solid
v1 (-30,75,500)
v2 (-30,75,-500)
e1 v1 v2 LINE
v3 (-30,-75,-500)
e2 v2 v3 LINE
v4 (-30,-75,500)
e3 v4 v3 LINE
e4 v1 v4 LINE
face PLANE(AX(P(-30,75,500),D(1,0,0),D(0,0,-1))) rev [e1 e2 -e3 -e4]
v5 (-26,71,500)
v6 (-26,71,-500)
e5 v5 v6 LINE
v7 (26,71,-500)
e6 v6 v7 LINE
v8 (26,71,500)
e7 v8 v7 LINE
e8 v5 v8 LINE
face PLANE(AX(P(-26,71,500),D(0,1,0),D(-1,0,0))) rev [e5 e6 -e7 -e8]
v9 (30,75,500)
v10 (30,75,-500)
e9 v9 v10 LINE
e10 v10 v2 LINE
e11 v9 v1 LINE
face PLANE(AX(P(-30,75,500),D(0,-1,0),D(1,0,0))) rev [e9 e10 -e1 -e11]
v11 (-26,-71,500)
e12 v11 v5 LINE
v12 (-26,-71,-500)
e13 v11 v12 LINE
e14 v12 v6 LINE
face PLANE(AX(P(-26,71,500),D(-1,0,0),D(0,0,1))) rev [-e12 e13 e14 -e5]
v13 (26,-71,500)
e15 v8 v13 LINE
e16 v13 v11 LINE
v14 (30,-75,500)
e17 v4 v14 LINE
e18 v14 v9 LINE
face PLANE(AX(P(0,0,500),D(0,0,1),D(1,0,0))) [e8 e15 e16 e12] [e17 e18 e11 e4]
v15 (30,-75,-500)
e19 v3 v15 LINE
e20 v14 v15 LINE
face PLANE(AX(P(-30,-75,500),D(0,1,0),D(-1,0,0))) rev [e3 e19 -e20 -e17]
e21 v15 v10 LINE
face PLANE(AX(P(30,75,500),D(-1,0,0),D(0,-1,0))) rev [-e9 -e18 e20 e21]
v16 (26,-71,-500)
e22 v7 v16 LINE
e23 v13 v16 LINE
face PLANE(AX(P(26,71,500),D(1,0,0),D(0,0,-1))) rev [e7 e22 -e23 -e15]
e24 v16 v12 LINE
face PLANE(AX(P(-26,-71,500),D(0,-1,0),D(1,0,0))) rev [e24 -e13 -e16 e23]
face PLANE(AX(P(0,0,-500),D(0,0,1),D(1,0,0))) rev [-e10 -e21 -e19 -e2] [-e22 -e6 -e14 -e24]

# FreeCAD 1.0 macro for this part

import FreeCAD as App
import Part
import Sketcher
from FreeCAD import Vector


def add_polygon(sketch, points):
    """Adds a closed chain of lines whose ends are joined by coincident constraints."""
    first, n = sketch.GeometryCount, len(points)
    for a, b in zip(points, points[1:] + points[:1]):
        sketch.addGeometry(Part.LineSegment(App.Vector(*a, 0), App.Vector(*b, 0)), False)
    for i in range(n):
        sketch.addConstraint(Sketcher.Constraint("Coincident", first + i, 2, first + (i + 1) % n, 1))

doc = App.newDocument("Part")
body = doc.addObject("PartDesign::Body", "Body")

# Sketch on XY plane
sketch1 = body.newObject("Sketcher::SketchObject", "Sketch")
sketch1.AttachmentSupport = (doc.getObject("XY_Plane"), [""])
sketch1.MapMode = "FlatFace"
add_polygon(sketch1, [(-30, 75), (-30, -75), (30, -75), (30, 75)])  # lines 0-3
add_polygon(sketch1, [(26, -71), (-26, -71), (-26, 71), (26, 71)])  # lines 4-7
sketch1.addConstraint(Sketcher.Constraint("Vertical", 0))
sketch1.addConstraint(Sketcher.Constraint("Horizontal", 1))
sketch1.addConstraint(Sketcher.Constraint("Vertical", 2))
sketch1.addConstraint(Sketcher.Constraint("Horizontal", 3))
sketch1.addConstraint(Sketcher.Constraint("Horizontal", 4))
sketch1.addConstraint(Sketcher.Constraint("Vertical", 5))
sketch1.addConstraint(Sketcher.Constraint("Horizontal", 6))
sketch1.addConstraint(Sketcher.Constraint("Vertical", 7))
sketch1.addConstraint(Sketcher.Constraint("Symmetric", 0, 2, 2, 2, -1, 1))
sketch1.addConstraint(Sketcher.Constraint("Symmetric", 4, 2, 6, 2, -1, 1))
sketch1.addConstraint(Sketcher.Constraint("DistanceX", 1, 1, 1, 2, 60.0))
sketch1.addConstraint(Sketcher.Constraint("DistanceX", 4, 2, 4, 1, 52.0))
sketch1.addConstraint(Sketcher.Constraint("DistanceY", 0, 2, 0, 1, 150.0))
sketch1.addConstraint(Sketcher.Constraint("DistanceY", 5, 1, 5, 2, 142.0))

# Sketch on XZ plane
sketch2 = body.newObject("Sketcher::SketchObject", "Sketch001")
sketch2.AttachmentSupport = (doc.getObject("XZ_Plane"), [""])
sketch2.MapMode = "FlatFace"
sketch2.addGeometry(Part.BSplineCurve([Vector(0, -500, 0), Vector(0, 500, 0)], [2, 2], [0, 1], False, 1, [1, 1], False), False)
sketch2.addConstraint(Sketcher.Constraint("Block", 0))
doc.recompute()

additivepipe = body.newObject("PartDesign::AdditivePipe", "AdditivePipe")
additivepipe.Profile = sketch1
additivepipe.Spine = (sketch2, ["Edge1"])

doc.recompute()
